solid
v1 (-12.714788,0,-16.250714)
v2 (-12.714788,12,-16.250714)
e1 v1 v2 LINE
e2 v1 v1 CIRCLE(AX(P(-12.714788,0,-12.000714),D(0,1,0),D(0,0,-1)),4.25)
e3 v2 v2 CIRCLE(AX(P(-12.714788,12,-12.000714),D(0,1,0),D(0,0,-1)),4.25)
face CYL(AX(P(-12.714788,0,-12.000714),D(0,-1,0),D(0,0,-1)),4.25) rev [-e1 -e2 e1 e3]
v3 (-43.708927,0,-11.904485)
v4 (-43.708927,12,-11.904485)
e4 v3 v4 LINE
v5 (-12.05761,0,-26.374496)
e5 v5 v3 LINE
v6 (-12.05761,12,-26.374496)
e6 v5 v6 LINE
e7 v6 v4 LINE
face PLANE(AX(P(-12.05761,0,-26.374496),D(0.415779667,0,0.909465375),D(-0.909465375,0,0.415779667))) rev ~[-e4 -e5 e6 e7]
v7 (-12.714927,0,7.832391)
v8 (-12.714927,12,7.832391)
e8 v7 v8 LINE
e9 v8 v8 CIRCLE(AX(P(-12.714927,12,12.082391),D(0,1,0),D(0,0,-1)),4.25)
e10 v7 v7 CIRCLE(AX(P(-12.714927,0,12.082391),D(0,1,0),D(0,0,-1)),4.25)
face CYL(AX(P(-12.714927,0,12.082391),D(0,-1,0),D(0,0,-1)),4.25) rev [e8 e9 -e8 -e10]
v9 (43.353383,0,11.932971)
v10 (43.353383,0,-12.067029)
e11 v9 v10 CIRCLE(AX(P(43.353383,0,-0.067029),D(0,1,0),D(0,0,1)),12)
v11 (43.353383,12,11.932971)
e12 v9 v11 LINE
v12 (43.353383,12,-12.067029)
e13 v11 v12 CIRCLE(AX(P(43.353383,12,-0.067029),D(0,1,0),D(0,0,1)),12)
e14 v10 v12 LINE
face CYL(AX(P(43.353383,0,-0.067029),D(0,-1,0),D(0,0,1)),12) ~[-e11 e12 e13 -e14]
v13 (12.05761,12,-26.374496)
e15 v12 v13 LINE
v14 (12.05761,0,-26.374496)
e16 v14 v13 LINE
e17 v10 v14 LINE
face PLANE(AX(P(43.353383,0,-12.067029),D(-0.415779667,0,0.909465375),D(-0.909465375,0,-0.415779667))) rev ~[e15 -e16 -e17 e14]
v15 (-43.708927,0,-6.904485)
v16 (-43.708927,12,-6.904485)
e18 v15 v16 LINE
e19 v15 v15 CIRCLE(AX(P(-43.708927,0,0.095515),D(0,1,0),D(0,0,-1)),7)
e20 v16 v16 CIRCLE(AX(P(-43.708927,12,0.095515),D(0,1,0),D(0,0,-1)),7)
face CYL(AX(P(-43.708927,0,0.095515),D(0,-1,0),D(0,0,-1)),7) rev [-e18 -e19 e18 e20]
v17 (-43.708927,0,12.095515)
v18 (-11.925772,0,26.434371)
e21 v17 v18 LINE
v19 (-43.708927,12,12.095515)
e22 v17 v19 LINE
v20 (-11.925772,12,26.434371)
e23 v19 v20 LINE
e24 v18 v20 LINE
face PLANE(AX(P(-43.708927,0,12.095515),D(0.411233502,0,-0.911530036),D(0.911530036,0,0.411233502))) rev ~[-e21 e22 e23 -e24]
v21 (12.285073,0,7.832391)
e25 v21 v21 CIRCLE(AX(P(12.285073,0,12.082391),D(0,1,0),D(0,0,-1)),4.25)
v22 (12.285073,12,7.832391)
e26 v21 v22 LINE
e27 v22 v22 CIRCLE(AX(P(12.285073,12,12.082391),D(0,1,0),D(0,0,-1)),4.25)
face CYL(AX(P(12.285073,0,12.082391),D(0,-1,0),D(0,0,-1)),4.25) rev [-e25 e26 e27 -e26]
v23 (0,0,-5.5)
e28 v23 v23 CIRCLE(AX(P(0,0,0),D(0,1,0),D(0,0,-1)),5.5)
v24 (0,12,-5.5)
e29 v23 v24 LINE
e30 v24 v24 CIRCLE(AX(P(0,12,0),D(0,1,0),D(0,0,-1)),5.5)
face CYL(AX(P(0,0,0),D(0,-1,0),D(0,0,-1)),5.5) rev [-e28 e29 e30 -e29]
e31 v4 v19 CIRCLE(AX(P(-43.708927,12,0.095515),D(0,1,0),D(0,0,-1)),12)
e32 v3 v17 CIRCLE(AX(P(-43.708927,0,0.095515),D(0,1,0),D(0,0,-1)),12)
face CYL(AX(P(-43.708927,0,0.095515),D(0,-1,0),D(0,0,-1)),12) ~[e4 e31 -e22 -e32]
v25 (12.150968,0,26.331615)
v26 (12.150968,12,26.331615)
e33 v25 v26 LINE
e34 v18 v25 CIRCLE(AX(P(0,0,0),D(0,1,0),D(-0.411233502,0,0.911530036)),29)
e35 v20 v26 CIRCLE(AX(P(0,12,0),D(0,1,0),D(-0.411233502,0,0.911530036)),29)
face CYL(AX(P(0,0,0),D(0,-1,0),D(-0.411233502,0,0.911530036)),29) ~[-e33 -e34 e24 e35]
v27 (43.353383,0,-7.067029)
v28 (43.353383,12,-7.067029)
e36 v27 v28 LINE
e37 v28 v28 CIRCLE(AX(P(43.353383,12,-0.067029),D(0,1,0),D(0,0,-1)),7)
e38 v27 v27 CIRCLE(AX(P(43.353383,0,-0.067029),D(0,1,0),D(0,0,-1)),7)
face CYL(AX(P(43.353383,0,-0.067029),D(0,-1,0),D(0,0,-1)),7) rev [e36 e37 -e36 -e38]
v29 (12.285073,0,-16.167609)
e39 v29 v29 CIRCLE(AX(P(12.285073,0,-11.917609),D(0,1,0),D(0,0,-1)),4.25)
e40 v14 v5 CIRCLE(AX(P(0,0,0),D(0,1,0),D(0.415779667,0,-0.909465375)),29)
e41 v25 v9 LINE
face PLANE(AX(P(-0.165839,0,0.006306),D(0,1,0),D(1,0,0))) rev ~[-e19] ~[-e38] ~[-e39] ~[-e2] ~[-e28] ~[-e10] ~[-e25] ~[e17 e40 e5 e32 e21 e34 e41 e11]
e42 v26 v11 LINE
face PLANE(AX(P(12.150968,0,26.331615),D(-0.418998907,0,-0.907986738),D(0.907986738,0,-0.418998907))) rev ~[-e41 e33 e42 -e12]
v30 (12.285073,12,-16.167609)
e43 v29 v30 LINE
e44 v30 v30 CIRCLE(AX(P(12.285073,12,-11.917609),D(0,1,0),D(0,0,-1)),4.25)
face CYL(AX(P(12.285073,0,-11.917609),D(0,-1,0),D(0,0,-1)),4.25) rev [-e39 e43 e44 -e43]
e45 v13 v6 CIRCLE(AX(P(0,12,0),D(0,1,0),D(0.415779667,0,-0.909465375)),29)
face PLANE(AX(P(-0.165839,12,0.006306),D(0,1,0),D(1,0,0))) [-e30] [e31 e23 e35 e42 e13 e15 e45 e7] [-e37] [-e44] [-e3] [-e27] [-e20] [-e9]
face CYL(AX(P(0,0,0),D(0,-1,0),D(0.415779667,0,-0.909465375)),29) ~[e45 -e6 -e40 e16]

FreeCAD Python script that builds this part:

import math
import FreeCAD as App
import Part
import Sketcher

doc = App.newDocument("Part")
body = doc.addObject("PartDesign::Body", "Body")

# Sketch on XZ plane
sketch1 = body.newObject("Sketcher::SketchObject", "Sketch")
sketch1.AttachmentSupport = (doc.getObject("XZ_Plane"), [""])
sketch1.MapMode = "FlatFace"
sketch1.addGeometry(Part.LineSegment(App.Vector(-12.1, -26.4, 0), App.Vector(-43.7, -11.9, 0)), False)
sketch1.addGeometry(Part.ArcOfCircle(Part.Circle(App.Vector(-43.7, 0.1, 0), App.Vector(0, 0, 1), 12), math.radians(90), math.radians(270)), False)
sketch1.addGeometry(Part.LineSegment(App.Vector(-43.7, 12.1, 0), App.Vector(-11.9, 26.4, 0)), False)
sketch1.addGeometry(Part.ArcOfCircle(Part.Circle(App.Vector(0, 0, 0), App.Vector(0, 0, 1), 29), math.radians(65), math.radians(114)), False)
sketch1.addGeometry(Part.LineSegment(App.Vector(12.2, 26.3, 0), App.Vector(43.4, 11.9, 0)), False)
sketch1.addGeometry(Part.ArcOfCircle(Part.Circle(App.Vector(43.4, -0.1, 0), App.Vector(0, 0, 1), 12), math.radians(-90), math.radians(90)), False)
sketch1.addGeometry(Part.LineSegment(App.Vector(43.4, -12.1, 0), App.Vector(12.1, -26.4, 0)), False)
sketch1.addGeometry(Part.ArcOfCircle(Part.Circle(App.Vector(0, 0, 0), App.Vector(0, 0, 1), 29), math.radians(-115), math.radians(-65)), False)
sketch1.addGeometry(Part.Circle(App.Vector(-12.7, 12.1, 0), App.Vector(0, 0, 1), 4.2), False)
sketch1.addGeometry(Part.Circle(App.Vector(-43.7, 0.1, 0), App.Vector(0, 0, 1), 7), False)
sketch1.addGeometry(Part.Circle(App.Vector(12.3, 12.1, 0), App.Vector(0, 0, 1), 4.2), False)
sketch1.addGeometry(Part.Circle(App.Vector(-12.7, -12, 0), App.Vector(0, 0, 1), 4.2), False)
sketch1.addGeometry(Part.Circle(App.Vector(0, 0, 0), App.Vector(0, 0, 1), 5.5), False)
sketch1.addGeometry(Part.Circle(App.Vector(43.4, -0.1, 0), App.Vector(0, 0, 1), 7), False)
sketch1.addGeometry(Part.Circle(App.Vector(12.3, -11.9, 0), App.Vector(0, 0, 1), 4.2), False)
sketch1.addConstraint(Sketcher.Constraint("Coincident", 0, 2, 1, 2))
sketch1.addConstraint(Sketcher.Constraint("Coincident", 1, 1, 2, 1))
sketch1.addConstraint(Sketcher.Constraint("Tangent", 2, 2, 3, 2))
sketch1.addConstraint(Sketcher.Constraint("Tangent", 3, 1, 4, 1))
sketch1.addConstraint(Sketcher.Constraint("Coincident", 4, 2, 5, 2))
sketch1.addConstraint(Sketcher.Constraint("Coincident", 5, 1, 6, 1))
sketch1.addConstraint(Sketcher.Constraint("Tangent", 6, 2, 7, 2))
sketch1.addConstraint(Sketcher.Constraint("Tangent", 7, 1, 0, 1))
sketch1.addConstraint(Sketcher.Constraint("Coincident", 3, 3, -1, 1))
sketch1.addConstraint(Sketcher.Constraint("Coincident", 7, 3, -1, 1))
sketch1.addConstraint(Sketcher.Constraint("Coincident", 12, 3, -1, 1))
sketch1.addConstraint(Sketcher.Constraint("Coincident", 9, 3, 1, 3))
sketch1.addConstraint(Sketcher.Constraint("Coincident", 13, 3, 5, 3))
sketch1.addConstraint(Sketcher.Constraint("Equal", 1, 5))
sketch1.addConstraint(Sketcher.Constraint("Equal", 3, 7))
sketch1.addConstraint(Sketcher.Constraint("Equal", 8, 10))
sketch1.addConstraint(Sketcher.Constraint("Equal", 10, 11))
sketch1.addConstraint(Sketcher.Constraint("Equal", 9, 13))
sketch1.addConstraint(Sketcher.Constraint("Equal", 11, 14))
sketch1.addConstraint(Sketcher.Constraint("Horizontal", 8, 3, 10, 3))
sketch1.addConstraint(Sketcher.Constraint("Horizontal", 6, 2, 7, 1))
sketch1.addConstraint(Sketcher.Constraint("Vertical", 10, 3, 14, 3))
sketch1.addConstraint(Sketcher.Constraint("Vertical", 9, 3, 0, 2))
sketch1.addConstraint(Sketcher.Constraint("Vertical", 0, 2, 1, 1))
sketch1.addConstraint(Sketcher.Constraint("Vertical", 13, 3, 4, 2))
sketch1.addConstraint(Sketcher.Constraint("Vertical", 4, 2, 5, 1))
sketch1.addConstraint(Sketcher.Constraint("Diameter", 9, 14.0))
sketch1.addConstraint(Sketcher.Constraint("Diameter", 12, 11.0))
sketch1.addConstraint(Sketcher.Constraint("Radius", 1, 12.0))
sketch1.addConstraint(Sketcher.Constraint("Radius", 3, 29.0))
sketch1.addConstraint(Sketcher.Constraint("Diameter", 8, 8.5))
sketch1.addConstraint(Sketcher.Constraint("DistanceX", 8, 3, 10, 3, 25.0))
sketch1.addConstraint(Sketcher.Constraint("DistanceY", 14, 3, 10, 3, 24.0))
sketch1.addConstraint(Sketcher.Constraint("DistanceX", 1, 3, 8, 3, 30.994))
sketch1.addConstraint(Sketcher.Constraint("DistanceX", 11, 3, 6, 2, 24.772399))
sketch1.addConstraint(Sketcher.Constraint("Distance", 2, 34.867919))
sketch1.addConstraint(Sketcher.Constraint("DistanceY", 5, 3, -1, 1, 0.067029))
sketch1.addConstraint(Sketcher.Constraint("DistanceY", -1, 1, 8, 3, 12.082391))
sketch1.addConstraint(Sketcher.Constraint("DistanceX", 11, 3, -1, 1, 12.714788))
sketch1.addConstraint(Sketcher.Constraint("DistanceY", 11, 3, 1, 3, 12.096229))
pad1 = body.newObject("PartDesign::Pad", "Pad")
pad1.Profile = sketch1
pad1.Length = 12
pad1.Reversed = True

doc.recompute()
